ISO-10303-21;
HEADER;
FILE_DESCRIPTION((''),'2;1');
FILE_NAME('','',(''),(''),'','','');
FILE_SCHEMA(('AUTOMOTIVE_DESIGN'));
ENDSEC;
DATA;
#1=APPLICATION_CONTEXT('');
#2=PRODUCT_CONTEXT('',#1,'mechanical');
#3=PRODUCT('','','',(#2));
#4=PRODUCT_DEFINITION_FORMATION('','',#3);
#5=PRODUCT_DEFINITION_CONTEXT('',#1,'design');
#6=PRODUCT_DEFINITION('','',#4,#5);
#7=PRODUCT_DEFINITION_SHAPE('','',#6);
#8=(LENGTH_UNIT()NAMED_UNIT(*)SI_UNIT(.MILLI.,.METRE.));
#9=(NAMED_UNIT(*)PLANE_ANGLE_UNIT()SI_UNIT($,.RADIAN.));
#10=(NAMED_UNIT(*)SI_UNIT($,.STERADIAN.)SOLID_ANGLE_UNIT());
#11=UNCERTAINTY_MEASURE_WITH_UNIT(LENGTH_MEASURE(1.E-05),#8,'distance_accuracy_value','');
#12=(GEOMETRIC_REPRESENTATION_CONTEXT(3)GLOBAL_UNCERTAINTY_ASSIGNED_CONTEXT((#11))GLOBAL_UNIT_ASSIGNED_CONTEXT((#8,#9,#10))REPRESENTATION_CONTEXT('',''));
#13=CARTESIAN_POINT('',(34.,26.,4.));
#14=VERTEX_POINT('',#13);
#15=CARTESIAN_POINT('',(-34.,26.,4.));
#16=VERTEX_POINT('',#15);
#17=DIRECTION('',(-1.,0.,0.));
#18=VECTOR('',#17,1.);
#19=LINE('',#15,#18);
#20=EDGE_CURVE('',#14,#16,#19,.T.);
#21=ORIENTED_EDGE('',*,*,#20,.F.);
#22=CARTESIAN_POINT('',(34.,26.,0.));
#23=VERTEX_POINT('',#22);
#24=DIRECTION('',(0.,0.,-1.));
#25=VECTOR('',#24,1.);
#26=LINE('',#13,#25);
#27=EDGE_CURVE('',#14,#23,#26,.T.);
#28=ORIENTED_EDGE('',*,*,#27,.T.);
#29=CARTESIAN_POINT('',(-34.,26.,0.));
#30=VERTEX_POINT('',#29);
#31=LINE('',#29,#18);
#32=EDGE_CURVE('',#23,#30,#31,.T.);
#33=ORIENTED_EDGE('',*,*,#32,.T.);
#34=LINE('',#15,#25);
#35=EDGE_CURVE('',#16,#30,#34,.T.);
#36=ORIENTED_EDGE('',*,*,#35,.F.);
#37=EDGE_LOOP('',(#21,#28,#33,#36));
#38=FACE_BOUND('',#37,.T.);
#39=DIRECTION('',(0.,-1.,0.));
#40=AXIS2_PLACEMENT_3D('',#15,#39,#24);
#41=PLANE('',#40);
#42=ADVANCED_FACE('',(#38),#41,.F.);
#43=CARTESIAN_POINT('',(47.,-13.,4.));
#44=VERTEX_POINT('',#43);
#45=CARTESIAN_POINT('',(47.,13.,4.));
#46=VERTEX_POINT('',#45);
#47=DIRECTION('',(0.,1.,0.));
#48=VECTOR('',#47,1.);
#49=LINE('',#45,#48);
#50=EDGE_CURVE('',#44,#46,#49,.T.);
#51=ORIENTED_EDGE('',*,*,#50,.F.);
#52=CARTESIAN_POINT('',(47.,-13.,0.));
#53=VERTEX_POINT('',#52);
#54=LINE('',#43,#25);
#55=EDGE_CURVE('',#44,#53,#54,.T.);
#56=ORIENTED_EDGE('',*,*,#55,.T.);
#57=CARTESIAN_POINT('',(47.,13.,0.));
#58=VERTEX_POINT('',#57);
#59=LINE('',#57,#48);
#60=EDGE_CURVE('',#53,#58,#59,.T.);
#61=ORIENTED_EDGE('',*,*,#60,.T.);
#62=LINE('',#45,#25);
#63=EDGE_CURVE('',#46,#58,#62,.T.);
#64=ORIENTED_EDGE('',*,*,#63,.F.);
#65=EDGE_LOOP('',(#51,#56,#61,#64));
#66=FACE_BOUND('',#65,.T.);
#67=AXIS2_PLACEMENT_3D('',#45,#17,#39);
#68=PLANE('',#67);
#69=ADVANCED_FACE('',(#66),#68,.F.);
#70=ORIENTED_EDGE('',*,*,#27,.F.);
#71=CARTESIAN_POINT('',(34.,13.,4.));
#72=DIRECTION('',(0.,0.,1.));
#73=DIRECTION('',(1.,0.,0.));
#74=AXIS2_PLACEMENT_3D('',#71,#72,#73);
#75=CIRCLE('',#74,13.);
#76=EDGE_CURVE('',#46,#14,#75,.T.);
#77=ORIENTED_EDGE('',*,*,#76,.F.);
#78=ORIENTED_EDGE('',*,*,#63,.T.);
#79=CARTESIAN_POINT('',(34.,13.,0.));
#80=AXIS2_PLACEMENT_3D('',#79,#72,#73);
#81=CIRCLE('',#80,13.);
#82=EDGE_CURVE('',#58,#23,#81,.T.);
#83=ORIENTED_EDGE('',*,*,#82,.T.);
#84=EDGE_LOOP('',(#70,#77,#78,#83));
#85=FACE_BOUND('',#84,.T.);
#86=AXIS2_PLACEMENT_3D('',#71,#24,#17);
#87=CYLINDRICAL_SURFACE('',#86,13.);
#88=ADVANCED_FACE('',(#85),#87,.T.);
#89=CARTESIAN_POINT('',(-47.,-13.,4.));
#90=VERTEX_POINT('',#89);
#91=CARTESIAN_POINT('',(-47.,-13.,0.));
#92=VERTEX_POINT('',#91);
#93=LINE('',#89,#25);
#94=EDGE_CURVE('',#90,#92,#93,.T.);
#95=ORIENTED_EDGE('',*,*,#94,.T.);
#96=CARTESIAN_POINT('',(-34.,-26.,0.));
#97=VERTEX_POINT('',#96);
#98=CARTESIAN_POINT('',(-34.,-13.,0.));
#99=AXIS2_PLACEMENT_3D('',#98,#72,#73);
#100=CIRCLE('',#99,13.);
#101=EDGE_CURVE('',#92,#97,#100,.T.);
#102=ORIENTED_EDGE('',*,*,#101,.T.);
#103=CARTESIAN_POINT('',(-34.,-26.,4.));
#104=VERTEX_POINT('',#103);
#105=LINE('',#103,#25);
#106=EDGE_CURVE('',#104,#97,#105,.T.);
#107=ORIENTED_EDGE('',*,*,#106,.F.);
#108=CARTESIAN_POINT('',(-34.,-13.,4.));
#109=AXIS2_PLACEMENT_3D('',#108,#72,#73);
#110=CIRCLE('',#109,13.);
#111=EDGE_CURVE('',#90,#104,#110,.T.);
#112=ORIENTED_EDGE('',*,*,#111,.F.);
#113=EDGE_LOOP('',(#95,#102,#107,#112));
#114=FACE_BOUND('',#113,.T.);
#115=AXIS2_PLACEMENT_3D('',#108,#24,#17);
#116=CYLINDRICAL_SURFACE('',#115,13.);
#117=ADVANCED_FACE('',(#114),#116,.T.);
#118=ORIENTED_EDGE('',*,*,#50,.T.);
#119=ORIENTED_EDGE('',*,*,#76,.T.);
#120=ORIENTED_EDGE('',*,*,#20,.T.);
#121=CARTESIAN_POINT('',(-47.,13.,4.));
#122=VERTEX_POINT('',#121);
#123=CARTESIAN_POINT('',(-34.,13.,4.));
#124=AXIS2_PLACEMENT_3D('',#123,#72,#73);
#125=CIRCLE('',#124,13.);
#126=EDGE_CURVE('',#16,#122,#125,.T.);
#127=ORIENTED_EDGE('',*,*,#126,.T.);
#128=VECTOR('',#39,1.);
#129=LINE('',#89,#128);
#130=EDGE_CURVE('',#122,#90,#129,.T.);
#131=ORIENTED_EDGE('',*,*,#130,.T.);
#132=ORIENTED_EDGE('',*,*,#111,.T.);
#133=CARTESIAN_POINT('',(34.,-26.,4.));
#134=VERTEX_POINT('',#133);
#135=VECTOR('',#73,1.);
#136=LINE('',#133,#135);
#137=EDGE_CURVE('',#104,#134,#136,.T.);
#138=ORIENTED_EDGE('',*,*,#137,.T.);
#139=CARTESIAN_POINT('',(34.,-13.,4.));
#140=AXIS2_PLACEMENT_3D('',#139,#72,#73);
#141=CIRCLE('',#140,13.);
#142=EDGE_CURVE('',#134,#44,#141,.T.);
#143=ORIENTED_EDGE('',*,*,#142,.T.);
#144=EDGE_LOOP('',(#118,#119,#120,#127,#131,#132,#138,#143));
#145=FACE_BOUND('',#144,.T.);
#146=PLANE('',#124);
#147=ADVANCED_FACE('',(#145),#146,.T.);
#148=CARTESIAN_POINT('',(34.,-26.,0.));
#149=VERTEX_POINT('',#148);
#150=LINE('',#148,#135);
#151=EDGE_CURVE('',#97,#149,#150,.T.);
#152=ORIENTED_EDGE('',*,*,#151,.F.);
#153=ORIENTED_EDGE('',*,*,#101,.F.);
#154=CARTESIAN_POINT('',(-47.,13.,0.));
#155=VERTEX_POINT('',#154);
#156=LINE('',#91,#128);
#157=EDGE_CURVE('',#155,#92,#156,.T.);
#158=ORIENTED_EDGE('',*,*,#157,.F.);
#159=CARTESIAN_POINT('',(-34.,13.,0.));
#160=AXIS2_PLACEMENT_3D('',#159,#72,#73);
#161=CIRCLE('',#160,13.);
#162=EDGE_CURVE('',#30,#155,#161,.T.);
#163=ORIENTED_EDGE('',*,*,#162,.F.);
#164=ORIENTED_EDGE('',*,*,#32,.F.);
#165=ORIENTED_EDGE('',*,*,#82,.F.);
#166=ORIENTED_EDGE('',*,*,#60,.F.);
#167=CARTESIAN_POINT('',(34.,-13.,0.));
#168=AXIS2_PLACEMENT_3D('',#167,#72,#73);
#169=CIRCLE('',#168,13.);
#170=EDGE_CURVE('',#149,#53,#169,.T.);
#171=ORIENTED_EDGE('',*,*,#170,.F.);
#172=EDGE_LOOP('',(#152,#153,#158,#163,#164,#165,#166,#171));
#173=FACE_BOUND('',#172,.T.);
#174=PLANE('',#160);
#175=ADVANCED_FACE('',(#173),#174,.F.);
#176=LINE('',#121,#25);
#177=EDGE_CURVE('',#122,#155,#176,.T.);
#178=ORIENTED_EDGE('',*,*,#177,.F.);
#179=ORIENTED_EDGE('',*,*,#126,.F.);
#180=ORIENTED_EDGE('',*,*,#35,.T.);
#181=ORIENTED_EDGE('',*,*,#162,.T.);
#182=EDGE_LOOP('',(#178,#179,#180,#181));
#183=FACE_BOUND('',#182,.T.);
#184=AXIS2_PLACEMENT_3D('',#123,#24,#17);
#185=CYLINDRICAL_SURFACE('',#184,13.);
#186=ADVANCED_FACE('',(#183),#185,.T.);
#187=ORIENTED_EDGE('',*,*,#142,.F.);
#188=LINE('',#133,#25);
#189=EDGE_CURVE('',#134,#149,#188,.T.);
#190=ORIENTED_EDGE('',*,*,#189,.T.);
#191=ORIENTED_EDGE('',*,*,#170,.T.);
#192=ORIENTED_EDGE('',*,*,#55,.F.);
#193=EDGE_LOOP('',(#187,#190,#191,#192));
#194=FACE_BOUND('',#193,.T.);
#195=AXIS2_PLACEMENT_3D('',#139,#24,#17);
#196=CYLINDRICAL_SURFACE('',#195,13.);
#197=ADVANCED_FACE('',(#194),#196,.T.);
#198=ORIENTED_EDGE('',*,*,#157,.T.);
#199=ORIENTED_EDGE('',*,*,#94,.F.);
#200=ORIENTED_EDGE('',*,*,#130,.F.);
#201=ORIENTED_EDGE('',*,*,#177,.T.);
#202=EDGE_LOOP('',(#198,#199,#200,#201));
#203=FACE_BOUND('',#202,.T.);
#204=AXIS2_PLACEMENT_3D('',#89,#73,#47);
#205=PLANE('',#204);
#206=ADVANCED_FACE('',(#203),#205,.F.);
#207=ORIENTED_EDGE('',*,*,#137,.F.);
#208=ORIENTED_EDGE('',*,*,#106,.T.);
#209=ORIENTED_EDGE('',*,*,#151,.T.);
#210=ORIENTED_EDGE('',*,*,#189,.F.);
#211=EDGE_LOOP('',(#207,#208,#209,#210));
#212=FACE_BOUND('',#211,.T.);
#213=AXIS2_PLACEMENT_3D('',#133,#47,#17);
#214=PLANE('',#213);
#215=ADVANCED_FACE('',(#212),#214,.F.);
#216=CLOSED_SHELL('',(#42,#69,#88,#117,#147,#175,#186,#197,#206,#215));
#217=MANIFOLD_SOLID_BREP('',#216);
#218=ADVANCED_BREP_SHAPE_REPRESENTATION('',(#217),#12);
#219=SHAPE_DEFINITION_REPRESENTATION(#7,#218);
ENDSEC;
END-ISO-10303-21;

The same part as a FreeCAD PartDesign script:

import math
import FreeCAD as App
import Part
import Sketcher
from FreeCAD import Vector
Q = App.Units.Quantity

doc = App.newDocument("Part")
body = doc.addObject("PartDesign::Body", "Body")

# Sketch on XY plane
sketch1 = body.newObject("Sketcher::SketchObject", "Sketch")
sketch1.AttachmentSupport = (doc.getObject("XY_Plane"), [""])
sketch1.MapMode = "FlatFace"
sketch1.addGeometry(Part.LineSegment(Vector(34, 26, 0), Vector(-34, 26, 0)), False)
sketch1.addGeometry(Part.ArcOfCircle(Part.Circle(Vector(-34, 13, 0), Vector(0, 0, 1), 13), math.radians(90), math.radians(180)), False)
sketch1.addGeometry(Part.LineSegment(Vector(-47, 13, 0), Vector(-47, -13, 0)), False)
sketch1.addGeometry(Part.ArcOfCircle(Part.Circle(Vector(-34, -13, 0), Vector(0, 0, 1), 13), math.radians(-180), math.radians(-90)), False)
sketch1.addGeometry(Part.LineSegment(Vector(-34, -26, 0), Vector(34, -26, 0)), False)
sketch1.addGeometry(Part.ArcOfCircle(Part.Circle(Vector(34, -13, 0), Vector(0, 0, 1), 13), math.radians(-90), math.radians(0)), False)
sketch1.addGeometry(Part.LineSegment(Vector(47, -13, 0), Vector(47, 13, 0)), False)
sketch1.addGeometry(Part.ArcOfCircle(Part.Circle(Vector(34, 13, 0), Vector(0, 0, 1), 13), math.radians(0), math.radians(90)), False)
sketch1.addConstraint(Sketcher.Constraint("Tangent", 0, 2, 1, 1))
sketch1.addConstraint(Sketcher.Constraint("Tangent", 1, 2, 2, 1))
sketch1.addConstraint(Sketcher.Constraint("Tangent", 2, 2, 3, 1))
sketch1.addConstraint(Sketcher.Constraint("Tangent", 3, 2, 4, 1))
sketch1.addConstraint(Sketcher.Constraint("Tangent", 4, 2, 5, 1))
sketch1.addConstraint(Sketcher.Constraint("Tangent", 5, 2, 6, 1))
sketch1.addConstraint(Sketcher.Constraint("Tangent", 6, 2, 7, 1))
sketch1.addConstraint(Sketcher.Constraint("Tangent", 7, 2, 0, 1))
sketch1.addConstraint(Sketcher.Constraint("Horizontal", 0))
sketch1.addConstraint(Sketcher.Constraint("Vertical", 2))
sketch1.addConstraint(Sketcher.Constraint("Horizontal", 4))
sketch1.addConstraint(Sketcher.Constraint("Vertical", 6))
sketch1.addConstraint(Sketcher.Constraint("Equal", 1, 3))
sketch1.addConstraint(Sketcher.Constraint("Equal", 3, 5))
sketch1.addConstraint(Sketcher.Constraint("Equal", 5, 7))
sketch1.addConstraint(Sketcher.Constraint("Symmetric", 1, 3, 5, 3, -1, 1))
sketch1.addConstraint(Sketcher.Constraint("Radius", 1, Q("13 mm")))
sketch1.addConstraint(Sketcher.Constraint("DistanceX", 0, 2, 0, 1, Q("68 mm")))
sketch1.addConstraint(Sketcher.Constraint("DistanceY", 2, 2, 2, 1, Q("26 mm")))
pad1 = body.newObject("PartDesign::Pad", "Pad")
pad1.Profile = sketch1
pad1.Length = 4

doc.recompute()
